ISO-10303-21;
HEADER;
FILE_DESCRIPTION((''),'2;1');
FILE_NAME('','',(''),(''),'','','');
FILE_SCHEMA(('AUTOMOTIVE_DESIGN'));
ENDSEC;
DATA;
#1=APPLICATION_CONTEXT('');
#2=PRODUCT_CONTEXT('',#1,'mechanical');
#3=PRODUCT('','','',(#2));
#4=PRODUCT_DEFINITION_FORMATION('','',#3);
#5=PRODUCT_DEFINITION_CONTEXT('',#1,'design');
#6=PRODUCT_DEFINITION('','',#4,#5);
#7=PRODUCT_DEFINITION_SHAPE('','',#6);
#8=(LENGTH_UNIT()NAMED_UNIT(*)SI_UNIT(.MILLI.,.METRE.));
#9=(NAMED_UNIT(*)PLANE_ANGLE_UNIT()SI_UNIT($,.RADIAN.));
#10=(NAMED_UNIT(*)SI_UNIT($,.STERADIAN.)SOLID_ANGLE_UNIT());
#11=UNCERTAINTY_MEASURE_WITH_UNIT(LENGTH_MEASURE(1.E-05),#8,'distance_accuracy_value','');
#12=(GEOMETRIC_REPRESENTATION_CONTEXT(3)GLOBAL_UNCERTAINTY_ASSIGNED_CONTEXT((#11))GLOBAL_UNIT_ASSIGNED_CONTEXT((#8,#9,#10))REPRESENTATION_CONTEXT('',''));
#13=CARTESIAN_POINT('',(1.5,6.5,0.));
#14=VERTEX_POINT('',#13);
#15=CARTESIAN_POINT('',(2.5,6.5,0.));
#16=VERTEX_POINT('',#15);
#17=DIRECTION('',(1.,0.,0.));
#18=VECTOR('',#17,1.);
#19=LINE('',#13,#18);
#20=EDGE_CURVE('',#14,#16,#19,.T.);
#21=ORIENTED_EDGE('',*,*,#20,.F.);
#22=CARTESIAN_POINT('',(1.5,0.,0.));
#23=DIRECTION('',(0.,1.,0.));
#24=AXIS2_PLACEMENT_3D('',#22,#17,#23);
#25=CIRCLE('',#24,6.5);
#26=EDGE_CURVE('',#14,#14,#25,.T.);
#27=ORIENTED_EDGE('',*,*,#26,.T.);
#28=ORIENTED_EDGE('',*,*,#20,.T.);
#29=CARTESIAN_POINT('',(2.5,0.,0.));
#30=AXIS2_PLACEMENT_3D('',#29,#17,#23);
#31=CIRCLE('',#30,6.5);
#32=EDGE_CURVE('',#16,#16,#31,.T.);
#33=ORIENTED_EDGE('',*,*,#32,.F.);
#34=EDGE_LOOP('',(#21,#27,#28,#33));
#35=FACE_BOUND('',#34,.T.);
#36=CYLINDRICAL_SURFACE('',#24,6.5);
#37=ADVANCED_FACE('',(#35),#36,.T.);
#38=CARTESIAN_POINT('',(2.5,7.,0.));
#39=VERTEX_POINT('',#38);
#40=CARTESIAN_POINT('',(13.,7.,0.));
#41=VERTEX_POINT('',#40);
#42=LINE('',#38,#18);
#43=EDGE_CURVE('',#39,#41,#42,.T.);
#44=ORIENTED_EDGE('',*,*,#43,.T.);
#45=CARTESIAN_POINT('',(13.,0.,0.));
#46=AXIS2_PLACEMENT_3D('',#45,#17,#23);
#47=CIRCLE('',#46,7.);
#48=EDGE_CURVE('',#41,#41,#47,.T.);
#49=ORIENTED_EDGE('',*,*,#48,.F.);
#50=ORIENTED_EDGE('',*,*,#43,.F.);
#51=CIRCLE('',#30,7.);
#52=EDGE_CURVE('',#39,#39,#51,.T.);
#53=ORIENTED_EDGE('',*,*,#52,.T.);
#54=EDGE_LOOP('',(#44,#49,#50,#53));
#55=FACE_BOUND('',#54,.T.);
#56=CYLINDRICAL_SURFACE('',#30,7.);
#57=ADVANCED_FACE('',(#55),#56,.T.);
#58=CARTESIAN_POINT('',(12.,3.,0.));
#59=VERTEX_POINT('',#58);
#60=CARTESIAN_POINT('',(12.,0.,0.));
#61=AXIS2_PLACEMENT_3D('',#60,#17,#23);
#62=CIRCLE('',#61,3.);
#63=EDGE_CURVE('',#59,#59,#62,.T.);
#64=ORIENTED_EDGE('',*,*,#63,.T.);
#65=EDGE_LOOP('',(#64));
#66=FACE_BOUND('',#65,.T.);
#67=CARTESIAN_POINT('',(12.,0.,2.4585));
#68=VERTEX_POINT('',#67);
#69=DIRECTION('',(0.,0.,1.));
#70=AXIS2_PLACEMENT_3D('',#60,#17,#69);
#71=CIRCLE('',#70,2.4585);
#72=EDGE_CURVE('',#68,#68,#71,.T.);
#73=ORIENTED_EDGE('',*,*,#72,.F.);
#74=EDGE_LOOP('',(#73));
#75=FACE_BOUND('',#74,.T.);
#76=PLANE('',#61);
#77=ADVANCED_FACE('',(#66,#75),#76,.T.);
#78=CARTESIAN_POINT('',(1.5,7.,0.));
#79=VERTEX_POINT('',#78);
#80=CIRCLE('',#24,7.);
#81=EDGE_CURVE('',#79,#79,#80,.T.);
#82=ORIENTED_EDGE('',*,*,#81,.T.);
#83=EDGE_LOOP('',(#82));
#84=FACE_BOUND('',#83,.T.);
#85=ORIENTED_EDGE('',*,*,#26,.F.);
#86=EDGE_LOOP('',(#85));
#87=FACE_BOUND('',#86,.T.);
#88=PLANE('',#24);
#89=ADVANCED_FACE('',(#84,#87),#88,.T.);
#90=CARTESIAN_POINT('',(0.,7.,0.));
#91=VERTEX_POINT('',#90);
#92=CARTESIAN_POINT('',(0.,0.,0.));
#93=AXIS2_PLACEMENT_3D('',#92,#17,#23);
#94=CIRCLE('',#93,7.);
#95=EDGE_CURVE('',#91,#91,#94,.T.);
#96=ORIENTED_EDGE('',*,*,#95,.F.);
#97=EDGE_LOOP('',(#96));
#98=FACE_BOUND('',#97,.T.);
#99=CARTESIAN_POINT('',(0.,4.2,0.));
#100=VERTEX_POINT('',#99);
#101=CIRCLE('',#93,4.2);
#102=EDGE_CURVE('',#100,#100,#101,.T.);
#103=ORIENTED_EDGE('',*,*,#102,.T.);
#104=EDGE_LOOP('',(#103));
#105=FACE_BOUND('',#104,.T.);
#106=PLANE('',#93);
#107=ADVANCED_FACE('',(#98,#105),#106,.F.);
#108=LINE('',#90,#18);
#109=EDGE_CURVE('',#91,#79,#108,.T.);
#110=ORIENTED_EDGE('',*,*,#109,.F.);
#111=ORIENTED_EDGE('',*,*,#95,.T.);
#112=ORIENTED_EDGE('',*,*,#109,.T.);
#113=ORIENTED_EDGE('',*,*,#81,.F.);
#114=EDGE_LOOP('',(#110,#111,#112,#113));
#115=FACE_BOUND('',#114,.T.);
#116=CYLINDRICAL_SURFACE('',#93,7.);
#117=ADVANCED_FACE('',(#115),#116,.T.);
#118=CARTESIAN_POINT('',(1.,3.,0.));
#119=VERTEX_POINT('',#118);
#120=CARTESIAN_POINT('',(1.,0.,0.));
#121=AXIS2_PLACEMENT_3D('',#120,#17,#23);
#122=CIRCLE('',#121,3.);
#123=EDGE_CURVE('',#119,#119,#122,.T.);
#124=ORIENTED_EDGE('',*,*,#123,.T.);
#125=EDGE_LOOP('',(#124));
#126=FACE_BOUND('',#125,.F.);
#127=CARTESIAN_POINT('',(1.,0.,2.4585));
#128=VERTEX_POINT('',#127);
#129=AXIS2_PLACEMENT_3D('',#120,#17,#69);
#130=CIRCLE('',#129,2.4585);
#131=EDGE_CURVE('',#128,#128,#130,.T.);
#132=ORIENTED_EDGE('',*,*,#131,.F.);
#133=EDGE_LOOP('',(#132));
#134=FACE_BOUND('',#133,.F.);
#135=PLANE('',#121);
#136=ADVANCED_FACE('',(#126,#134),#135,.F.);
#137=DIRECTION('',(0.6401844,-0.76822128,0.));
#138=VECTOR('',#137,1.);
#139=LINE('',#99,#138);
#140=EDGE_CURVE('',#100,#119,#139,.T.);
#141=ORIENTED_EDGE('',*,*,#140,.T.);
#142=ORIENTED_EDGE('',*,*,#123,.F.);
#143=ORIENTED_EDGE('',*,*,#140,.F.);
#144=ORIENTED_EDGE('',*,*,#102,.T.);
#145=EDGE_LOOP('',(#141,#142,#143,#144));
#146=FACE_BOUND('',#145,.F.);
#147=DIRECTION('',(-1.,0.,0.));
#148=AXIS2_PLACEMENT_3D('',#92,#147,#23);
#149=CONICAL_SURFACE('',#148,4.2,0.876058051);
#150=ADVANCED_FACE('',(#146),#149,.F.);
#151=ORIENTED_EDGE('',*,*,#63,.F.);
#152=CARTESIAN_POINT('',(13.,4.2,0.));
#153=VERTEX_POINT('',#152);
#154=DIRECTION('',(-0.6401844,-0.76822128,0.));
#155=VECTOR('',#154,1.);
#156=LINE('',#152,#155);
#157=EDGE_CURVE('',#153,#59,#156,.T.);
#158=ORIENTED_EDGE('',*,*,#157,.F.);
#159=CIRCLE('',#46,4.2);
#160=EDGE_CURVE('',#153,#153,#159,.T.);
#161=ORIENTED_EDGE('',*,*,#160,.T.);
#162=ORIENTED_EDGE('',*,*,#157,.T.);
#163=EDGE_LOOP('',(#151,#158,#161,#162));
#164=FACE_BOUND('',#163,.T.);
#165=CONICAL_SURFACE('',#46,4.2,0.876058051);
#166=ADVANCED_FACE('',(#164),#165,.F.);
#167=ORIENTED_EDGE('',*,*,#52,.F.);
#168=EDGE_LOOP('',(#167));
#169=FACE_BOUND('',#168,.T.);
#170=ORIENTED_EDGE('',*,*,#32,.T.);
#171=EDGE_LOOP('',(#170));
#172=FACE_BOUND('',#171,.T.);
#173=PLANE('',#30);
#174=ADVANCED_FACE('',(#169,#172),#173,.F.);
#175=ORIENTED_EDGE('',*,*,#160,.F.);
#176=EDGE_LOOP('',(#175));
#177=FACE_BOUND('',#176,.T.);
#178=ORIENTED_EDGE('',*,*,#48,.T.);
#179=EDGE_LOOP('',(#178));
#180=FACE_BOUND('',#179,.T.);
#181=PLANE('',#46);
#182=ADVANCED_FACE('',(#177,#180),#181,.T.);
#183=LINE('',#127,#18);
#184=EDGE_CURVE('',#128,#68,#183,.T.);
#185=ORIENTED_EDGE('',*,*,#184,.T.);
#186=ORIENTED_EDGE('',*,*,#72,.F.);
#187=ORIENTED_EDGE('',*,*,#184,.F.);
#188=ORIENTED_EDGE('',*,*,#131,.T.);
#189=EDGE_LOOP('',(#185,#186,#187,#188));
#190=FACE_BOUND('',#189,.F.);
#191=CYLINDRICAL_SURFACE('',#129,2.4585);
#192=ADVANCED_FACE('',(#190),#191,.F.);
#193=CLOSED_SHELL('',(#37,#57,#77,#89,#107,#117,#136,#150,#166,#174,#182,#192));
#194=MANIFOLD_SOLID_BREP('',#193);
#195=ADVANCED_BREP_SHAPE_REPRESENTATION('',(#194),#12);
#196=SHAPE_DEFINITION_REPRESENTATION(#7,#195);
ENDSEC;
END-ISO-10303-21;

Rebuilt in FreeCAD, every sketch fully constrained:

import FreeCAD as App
import Part
import Sketcher
from FreeCAD import Vector
Q = App.Units.Quantity

doc = App.newDocument("Part")
body = doc.addObject("PartDesign::Body", "Body")

# Sketch on XY plane
sketch1 = body.newObject("Sketcher::SketchObject", "Sketch")
sketch1.AttachmentSupport = (doc.getObject("XY_Plane"), [""])
sketch1.MapMode = "FlatFace"
sketch1.addGeometry([
    Part.LineSegment(Vector(1, 3, 0), Vector(1, 0, 0)),  # 0
    Part.LineSegment(Vector(1, 0, 0), Vector(12, 0, 0)),  # 1
    Part.LineSegment(Vector(12, 0, 0), Vector(12, 3, 0)),  # 2
    Part.LineSegment(Vector(12, 3, 0), Vector(13, 4.2, 0)),  # 3
    Part.LineSegment(Vector(13, 4.2, 0), Vector(13, 7, 0)),  # 4
    Part.LineSegment(Vector(13, 7, 0), Vector(2.5, 7, 0)),  # 5
    Part.LineSegment(Vector(2.5, 7, 0), Vector(2.5, 6.5, 0)),  # 6
    Part.LineSegment(Vector(2.5, 6.5, 0), Vector(1.5, 6.5, 0)),  # 7
    Part.LineSegment(Vector(1.5, 6.5, 0), Vector(1.5, 7, 0)),  # 8
    Part.LineSegment(Vector(1.5, 7, 0), Vector(0, 7, 0)),  # 9
    Part.LineSegment(Vector(0, 7, 0), Vector(0, 4.2, 0)),  # 10
    Part.LineSegment(Vector(0, 4.2, 0), Vector(1, 3, 0)),  # 11
], False)
sketch1.addConstraint([
    Sketcher.Constraint("Coincident", 0, 2, 1, 1),
    Sketcher.Constraint("Coincident", 1, 2, 2, 1),
    Sketcher.Constraint("Coincident", 2, 2, 3, 1),
    Sketcher.Constraint("Coincident", 3, 2, 4, 1),
    Sketcher.Constraint("Coincident", 4, 2, 5, 1),
    Sketcher.Constraint("Coincident", 5, 2, 6, 1),
    Sketcher.Constraint("Coincident", 6, 2, 7, 1),
    Sketcher.Constraint("Coincident", 7, 2, 8, 1),
    Sketcher.Constraint("Coincident", 8, 2, 9, 1),
    Sketcher.Constraint("Coincident", 9, 2, 10, 1),
    Sketcher.Constraint("Coincident", 10, 2, 11, 1),
    Sketcher.Constraint("Coincident", 11, 2, 0, 1),
    Sketcher.Constraint("Vertical", 0),
    Sketcher.Constraint("Horizontal", 1),
    Sketcher.Constraint("Vertical", 2),
    Sketcher.Constraint("Vertical", 4),
    Sketcher.Constraint("Horizontal", 5),
    Sketcher.Constraint("Vertical", 6),
    Sketcher.Constraint("Horizontal", 7),
    Sketcher.Constraint("Vertical", 8),
    Sketcher.Constraint("Horizontal", 9),
    Sketcher.Constraint("Vertical", 10),
    Sketcher.Constraint("PointOnObject", 0, 2, -1),
    Sketcher.Constraint("PointOnObject", 9, 2, -2),
    Sketcher.Constraint("Horizontal", 5, 2, 8, 2),
    Sketcher.Constraint("Horizontal", 3, 2, 10, 2),
    Sketcher.Constraint("Horizontal", 2, 2, 11, 2),
    Sketcher.Constraint("Equal", 3, 11),
    Sketcher.Constraint("DistanceX", 7, 2, 7, 1, Q("1 mm")),
    Sketcher.Constraint("DistanceY", 0, 2, 0, 1, Q("3 mm")),
    Sketcher.Constraint("DistanceX", 9, 2, 9, 1, Q("1.5 mm")),
    Sketcher.Constraint("DistanceY", 6, 2, 6, 1, Q("0.5 mm")),
    Sketcher.Constraint("DistanceX", -1, 1, 0, 2, Q("1 mm")),
    Sketcher.Constraint("DistanceX", -1, 1, 3, 2, Q("13 mm")),
    Sketcher.Constraint("DistanceY", -1, 1, 4, 2, Q("7 mm")),
    Sketcher.Constraint("DistanceY", 2, 2, 3, 2, Q("1.2 mm")),
])
revolution = body.newObject("PartDesign::Revolution", "Revolution")
revolution.Profile = sketch1
revolution.ReferenceAxis = (sketch1, ["H_Axis"])
revolution.Angle = 360

# Sketch on YZ plane
sketch2 = body.newObject("Sketcher::SketchObject", "Sketch001")
sketch2.AttachmentSupport = (doc.getObject("YZ_Plane"), [""])
sketch2.MapMode = "FlatFace"
sketch2.AttachmentOffset = App.Placement(Vector(0, 0, 1), App.Rotation())
sketch2.addGeometry(Part.Circle(Vector(0, 0, 0), Vector(0, 0, 1), 2.4585), False)
sketch2.addConstraint([
    Sketcher.Constraint("Coincident", 0, 3, -1, 1),
    Sketcher.Constraint("Diameter", 0, Q("4.917 mm")),
])
doc.recompute()
hole = body.newObject("PartDesign::Hole", "Hole")
hole.Profile = sketch2
hole.ThreadType = "None"
hole.Diameter = 4.917
hole.DepthType = "ThroughAll"
hole.Reversed = True

doc.recompute()
